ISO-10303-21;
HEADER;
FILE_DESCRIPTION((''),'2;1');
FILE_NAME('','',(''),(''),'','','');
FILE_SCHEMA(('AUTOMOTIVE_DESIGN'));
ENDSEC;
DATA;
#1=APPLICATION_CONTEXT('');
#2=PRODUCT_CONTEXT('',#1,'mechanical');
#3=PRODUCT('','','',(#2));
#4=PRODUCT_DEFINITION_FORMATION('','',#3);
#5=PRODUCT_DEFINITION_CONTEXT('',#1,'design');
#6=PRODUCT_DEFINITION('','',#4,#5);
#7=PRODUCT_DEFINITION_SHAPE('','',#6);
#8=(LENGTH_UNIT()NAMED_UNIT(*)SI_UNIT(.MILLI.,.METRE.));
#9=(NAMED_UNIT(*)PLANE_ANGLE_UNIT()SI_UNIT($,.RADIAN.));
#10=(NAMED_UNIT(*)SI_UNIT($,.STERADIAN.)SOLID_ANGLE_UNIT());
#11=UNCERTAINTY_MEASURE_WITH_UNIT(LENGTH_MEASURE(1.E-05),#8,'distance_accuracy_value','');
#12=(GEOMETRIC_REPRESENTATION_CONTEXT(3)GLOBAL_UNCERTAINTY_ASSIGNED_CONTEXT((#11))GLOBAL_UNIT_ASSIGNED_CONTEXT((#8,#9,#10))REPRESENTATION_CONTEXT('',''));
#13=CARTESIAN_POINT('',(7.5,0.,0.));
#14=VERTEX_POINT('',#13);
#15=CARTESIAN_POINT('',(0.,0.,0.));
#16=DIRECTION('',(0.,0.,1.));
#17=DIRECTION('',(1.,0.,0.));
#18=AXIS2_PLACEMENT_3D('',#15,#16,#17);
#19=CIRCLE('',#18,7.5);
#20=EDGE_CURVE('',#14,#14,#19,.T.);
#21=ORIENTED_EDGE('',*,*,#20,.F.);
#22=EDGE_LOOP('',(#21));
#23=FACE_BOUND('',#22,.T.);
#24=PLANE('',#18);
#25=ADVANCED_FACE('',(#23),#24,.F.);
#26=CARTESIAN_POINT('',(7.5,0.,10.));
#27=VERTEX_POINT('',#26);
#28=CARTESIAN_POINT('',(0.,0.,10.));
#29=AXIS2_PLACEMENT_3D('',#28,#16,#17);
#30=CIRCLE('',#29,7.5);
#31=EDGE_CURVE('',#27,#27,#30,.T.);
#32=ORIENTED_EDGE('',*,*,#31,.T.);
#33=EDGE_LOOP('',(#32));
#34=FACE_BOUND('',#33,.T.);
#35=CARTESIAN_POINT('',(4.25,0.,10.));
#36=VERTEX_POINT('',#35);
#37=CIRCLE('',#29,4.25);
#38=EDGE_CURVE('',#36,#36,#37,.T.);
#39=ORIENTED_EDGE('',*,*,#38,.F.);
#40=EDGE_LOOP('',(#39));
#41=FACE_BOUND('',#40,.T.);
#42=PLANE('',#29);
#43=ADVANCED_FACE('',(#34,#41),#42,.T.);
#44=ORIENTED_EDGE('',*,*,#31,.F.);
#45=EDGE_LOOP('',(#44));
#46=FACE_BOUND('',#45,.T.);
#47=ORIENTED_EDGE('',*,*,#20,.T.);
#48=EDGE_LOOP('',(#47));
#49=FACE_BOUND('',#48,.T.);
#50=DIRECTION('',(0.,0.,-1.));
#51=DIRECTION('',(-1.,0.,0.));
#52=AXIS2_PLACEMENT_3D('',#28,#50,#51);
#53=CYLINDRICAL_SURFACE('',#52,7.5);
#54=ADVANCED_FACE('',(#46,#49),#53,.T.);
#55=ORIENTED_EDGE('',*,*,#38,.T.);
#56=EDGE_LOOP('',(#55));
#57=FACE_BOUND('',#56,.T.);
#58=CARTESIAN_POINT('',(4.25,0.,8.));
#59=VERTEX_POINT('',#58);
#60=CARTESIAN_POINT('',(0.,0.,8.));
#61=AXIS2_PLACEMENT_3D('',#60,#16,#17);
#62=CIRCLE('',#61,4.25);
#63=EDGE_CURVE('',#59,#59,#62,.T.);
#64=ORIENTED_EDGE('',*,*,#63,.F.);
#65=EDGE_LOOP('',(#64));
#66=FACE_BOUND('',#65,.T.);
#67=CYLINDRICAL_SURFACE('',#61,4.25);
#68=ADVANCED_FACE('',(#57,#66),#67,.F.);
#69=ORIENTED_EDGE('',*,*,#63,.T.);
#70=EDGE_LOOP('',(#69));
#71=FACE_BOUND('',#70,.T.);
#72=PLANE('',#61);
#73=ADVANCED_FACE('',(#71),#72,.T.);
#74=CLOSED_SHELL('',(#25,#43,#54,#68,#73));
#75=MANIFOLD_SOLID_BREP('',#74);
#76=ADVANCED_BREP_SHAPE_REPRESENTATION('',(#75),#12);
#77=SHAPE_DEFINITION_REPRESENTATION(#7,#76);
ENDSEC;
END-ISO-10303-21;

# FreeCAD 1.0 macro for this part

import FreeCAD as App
import Part
import Sketcher

V = App.Vector

doc = App.newDocument("Part")
params = doc.addObject("Spreadsheet::Sheet", "Params")
for row, (alias, value) in enumerate([
    ("sketch1_diameter", "15 mm"),
    ("pad1_length", "10 mm"),
    ("sketch2_diameter", "8.5 mm"),
    ("pocket1_length", "2 mm"),
], start=1):
    params.set(f"A{row}", alias)
    params.set(f"B{row}", "=" + value)
    params.setAlias(f"B{row}", alias)

body = doc.addObject("PartDesign::Body", "Body")

# Sketch on XY plane
sketch1 = doc.addObject("Sketcher::SketchObject", "Sketch")
body.addObject(sketch1)
sketch1.AttachmentSupport = (doc.XY_Plane, [""])
sketch1.MapMode = "FlatFace"
sketch1.addGeometry(Part.Circle(V(0, 0, 0), V(0, 0, 1), 8), False)
sketch1.addConstraint([
    Sketcher.Constraint("Coincident", 0, 3, -1, 1),
    Sketcher.Constraint("Diameter", 0, 15.0),
])
sketch1.setExpression("Constraints[1]", "Params.sketch1_diameter")
pad1 = doc.addObject("PartDesign::Pad", "Pad")
body.addObject(pad1)
pad1.Profile = sketch1
pad1.setExpression("Length", "Params.pad1_length")

# Sketch on XY plane
sketch2 = doc.addObject("Sketcher::SketchObject", "Sketch001")
body.addObject(sketch2)
sketch2.AttachmentSupport = (doc.XY_Plane, [""])
sketch2.MapMode = "FlatFace"
sketch2.AttachmentOffset = App.Placement(V(0, 0, 10), App.Rotation())
sketch2.addGeometry(Part.Circle(V(0, 0, 0), V(0, 0, 1), 4.2), False)
sketch2.addConstraint([
    Sketcher.Constraint("Coincident", 0, 3, -1, 1),
    Sketcher.Constraint("Diameter", 0, 8.5),
])
sketch2.setExpression("Constraints[1]", "Params.sketch2_diameter")
pocket1 = doc.addObject("PartDesign::Pocket", "Pocket")
body.addObject(pocket1)
pocket1.Profile = sketch2
pocket1.setExpression("Length", "Params.pocket1_length")

doc.recompute()
